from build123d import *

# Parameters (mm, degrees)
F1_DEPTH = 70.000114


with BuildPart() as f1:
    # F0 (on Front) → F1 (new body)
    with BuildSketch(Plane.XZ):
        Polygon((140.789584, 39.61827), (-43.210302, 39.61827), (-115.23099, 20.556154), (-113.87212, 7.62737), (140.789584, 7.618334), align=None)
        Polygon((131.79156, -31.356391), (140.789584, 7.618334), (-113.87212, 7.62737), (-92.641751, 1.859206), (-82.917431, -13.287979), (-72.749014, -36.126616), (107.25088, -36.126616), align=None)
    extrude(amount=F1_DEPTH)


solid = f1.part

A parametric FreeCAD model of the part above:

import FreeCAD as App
import Part
import Sketcher
Q = App.Units.Quantity

doc = App.newDocument("Part")
body = doc.addObject("PartDesign::Body", "Body")

# Sketch on XZ plane
sketch1 = body.newObject("Sketcher::SketchObject", "Sketch")
sketch1.AttachmentSupport = (doc.getObject("XZ_Plane"), [""])
sketch1.MapMode = "FlatFace"
sketch1.addGeometry([
    Part.LineSegment(App.Vector(141, 40, 0), App.Vector(-43, 40, 0)),  # 0
    Part.LineSegment(App.Vector(-43, 40, 0), App.Vector(-115, 21, 0)),  # 1
    Part.LineSegment(App.Vector(-115, 21, 0), App.Vector(-114, 8, 0)),  # 2
    Part.LineSegment(App.Vector(-114, 8, 0), App.Vector(-93, 2, 0)),  # 3
    Part.LineSegment(App.Vector(-93, 2, 0), App.Vector(-83, -13, 0)),  # 4
    Part.LineSegment(App.Vector(-83, -13, 0), App.Vector(-73, -36, 0)),  # 5
    Part.LineSegment(App.Vector(-73, -36, 0), App.Vector(107, -36, 0)),  # 6
    Part.LineSegment(App.Vector(107, -36, 0), App.Vector(132, -31, 0)),  # 7
    Part.LineSegment(App.Vector(132, -31, 0), App.Vector(141, 8, 0)),  # 8
    Part.LineSegment(App.Vector(141, 8, 0), App.Vector(141, 40, 0)),  # 9
], False)
sketch1.addConstraint([
    Sketcher.Constraint("Coincident", 0, 2, 1, 1),
    Sketcher.Constraint("Coincident", 1, 2, 2, 1),
    Sketcher.Constraint("Coincident", 2, 2, 3, 1),
    Sketcher.Constraint("Coincident", 3, 2, 4, 1),
    Sketcher.Constraint("Coincident", 4, 2, 5, 1),
    Sketcher.Constraint("Coincident", 5, 2, 6, 1),
    Sketcher.Constraint("Coincident", 6, 2, 7, 1),
    Sketcher.Constraint("Coincident", 7, 2, 8, 1),
    Sketcher.Constraint("Coincident", 8, 2, 9, 1),
    Sketcher.Constraint("Coincident", 9, 2, 0, 1),
    Sketcher.Constraint("Horizontal", 0),
    Sketcher.Constraint("Horizontal", 6),
    Sketcher.Constraint("Vertical", 9),
    Sketcher.Constraint("Equal", 5, 7),
    Sketcher.Constraint("Angle", 2, Q("-84 deg")),
    Sketcher.Constraint("Angle", 5, Q("-65.999999 deg")),
    Sketcher.Constraint("Angle", 7, Q("11 deg")),
    Sketcher.Constraint("Angle", 8, Q("77 deg")),
    Sketcher.Constraint("Distance", 2, 12.999999),
    Sketcher.Constraint("Distance", 5, 25.000001),
    Sketcher.Constraint("Angle", 3, Q("-15.200001 deg")),
    Sketcher.Constraint("Angle", 4, Q("-57.3 deg")),
    Sketcher.Constraint("DistanceX", 2, 2, 6, 2, 221.123),
    Sketcher.Constraint("DistanceY", 2, 2, 0, 2, 31.9909),
    Sketcher.Constraint("Distance", 1, 74.500629),
    Sketcher.Constraint("Distance", 4, 17.999989),
    Sketcher.Constraint("Distance", 8, 39.99992),
    Sketcher.Constraint("DistanceX", 6, 1, 6, 2, 179.999894),
    Sketcher.Constraint("DistanceY", -1, 1, 0, 2, 39.61827),
    Sketcher.Constraint("DistanceX", 1, 2, -1, 1, 115.23099),
])
pad1 = body.newObject("PartDesign::Pad", "Pad")
pad1.Profile = sketch1
pad1.Length = 70.000114

doc.recompute()
